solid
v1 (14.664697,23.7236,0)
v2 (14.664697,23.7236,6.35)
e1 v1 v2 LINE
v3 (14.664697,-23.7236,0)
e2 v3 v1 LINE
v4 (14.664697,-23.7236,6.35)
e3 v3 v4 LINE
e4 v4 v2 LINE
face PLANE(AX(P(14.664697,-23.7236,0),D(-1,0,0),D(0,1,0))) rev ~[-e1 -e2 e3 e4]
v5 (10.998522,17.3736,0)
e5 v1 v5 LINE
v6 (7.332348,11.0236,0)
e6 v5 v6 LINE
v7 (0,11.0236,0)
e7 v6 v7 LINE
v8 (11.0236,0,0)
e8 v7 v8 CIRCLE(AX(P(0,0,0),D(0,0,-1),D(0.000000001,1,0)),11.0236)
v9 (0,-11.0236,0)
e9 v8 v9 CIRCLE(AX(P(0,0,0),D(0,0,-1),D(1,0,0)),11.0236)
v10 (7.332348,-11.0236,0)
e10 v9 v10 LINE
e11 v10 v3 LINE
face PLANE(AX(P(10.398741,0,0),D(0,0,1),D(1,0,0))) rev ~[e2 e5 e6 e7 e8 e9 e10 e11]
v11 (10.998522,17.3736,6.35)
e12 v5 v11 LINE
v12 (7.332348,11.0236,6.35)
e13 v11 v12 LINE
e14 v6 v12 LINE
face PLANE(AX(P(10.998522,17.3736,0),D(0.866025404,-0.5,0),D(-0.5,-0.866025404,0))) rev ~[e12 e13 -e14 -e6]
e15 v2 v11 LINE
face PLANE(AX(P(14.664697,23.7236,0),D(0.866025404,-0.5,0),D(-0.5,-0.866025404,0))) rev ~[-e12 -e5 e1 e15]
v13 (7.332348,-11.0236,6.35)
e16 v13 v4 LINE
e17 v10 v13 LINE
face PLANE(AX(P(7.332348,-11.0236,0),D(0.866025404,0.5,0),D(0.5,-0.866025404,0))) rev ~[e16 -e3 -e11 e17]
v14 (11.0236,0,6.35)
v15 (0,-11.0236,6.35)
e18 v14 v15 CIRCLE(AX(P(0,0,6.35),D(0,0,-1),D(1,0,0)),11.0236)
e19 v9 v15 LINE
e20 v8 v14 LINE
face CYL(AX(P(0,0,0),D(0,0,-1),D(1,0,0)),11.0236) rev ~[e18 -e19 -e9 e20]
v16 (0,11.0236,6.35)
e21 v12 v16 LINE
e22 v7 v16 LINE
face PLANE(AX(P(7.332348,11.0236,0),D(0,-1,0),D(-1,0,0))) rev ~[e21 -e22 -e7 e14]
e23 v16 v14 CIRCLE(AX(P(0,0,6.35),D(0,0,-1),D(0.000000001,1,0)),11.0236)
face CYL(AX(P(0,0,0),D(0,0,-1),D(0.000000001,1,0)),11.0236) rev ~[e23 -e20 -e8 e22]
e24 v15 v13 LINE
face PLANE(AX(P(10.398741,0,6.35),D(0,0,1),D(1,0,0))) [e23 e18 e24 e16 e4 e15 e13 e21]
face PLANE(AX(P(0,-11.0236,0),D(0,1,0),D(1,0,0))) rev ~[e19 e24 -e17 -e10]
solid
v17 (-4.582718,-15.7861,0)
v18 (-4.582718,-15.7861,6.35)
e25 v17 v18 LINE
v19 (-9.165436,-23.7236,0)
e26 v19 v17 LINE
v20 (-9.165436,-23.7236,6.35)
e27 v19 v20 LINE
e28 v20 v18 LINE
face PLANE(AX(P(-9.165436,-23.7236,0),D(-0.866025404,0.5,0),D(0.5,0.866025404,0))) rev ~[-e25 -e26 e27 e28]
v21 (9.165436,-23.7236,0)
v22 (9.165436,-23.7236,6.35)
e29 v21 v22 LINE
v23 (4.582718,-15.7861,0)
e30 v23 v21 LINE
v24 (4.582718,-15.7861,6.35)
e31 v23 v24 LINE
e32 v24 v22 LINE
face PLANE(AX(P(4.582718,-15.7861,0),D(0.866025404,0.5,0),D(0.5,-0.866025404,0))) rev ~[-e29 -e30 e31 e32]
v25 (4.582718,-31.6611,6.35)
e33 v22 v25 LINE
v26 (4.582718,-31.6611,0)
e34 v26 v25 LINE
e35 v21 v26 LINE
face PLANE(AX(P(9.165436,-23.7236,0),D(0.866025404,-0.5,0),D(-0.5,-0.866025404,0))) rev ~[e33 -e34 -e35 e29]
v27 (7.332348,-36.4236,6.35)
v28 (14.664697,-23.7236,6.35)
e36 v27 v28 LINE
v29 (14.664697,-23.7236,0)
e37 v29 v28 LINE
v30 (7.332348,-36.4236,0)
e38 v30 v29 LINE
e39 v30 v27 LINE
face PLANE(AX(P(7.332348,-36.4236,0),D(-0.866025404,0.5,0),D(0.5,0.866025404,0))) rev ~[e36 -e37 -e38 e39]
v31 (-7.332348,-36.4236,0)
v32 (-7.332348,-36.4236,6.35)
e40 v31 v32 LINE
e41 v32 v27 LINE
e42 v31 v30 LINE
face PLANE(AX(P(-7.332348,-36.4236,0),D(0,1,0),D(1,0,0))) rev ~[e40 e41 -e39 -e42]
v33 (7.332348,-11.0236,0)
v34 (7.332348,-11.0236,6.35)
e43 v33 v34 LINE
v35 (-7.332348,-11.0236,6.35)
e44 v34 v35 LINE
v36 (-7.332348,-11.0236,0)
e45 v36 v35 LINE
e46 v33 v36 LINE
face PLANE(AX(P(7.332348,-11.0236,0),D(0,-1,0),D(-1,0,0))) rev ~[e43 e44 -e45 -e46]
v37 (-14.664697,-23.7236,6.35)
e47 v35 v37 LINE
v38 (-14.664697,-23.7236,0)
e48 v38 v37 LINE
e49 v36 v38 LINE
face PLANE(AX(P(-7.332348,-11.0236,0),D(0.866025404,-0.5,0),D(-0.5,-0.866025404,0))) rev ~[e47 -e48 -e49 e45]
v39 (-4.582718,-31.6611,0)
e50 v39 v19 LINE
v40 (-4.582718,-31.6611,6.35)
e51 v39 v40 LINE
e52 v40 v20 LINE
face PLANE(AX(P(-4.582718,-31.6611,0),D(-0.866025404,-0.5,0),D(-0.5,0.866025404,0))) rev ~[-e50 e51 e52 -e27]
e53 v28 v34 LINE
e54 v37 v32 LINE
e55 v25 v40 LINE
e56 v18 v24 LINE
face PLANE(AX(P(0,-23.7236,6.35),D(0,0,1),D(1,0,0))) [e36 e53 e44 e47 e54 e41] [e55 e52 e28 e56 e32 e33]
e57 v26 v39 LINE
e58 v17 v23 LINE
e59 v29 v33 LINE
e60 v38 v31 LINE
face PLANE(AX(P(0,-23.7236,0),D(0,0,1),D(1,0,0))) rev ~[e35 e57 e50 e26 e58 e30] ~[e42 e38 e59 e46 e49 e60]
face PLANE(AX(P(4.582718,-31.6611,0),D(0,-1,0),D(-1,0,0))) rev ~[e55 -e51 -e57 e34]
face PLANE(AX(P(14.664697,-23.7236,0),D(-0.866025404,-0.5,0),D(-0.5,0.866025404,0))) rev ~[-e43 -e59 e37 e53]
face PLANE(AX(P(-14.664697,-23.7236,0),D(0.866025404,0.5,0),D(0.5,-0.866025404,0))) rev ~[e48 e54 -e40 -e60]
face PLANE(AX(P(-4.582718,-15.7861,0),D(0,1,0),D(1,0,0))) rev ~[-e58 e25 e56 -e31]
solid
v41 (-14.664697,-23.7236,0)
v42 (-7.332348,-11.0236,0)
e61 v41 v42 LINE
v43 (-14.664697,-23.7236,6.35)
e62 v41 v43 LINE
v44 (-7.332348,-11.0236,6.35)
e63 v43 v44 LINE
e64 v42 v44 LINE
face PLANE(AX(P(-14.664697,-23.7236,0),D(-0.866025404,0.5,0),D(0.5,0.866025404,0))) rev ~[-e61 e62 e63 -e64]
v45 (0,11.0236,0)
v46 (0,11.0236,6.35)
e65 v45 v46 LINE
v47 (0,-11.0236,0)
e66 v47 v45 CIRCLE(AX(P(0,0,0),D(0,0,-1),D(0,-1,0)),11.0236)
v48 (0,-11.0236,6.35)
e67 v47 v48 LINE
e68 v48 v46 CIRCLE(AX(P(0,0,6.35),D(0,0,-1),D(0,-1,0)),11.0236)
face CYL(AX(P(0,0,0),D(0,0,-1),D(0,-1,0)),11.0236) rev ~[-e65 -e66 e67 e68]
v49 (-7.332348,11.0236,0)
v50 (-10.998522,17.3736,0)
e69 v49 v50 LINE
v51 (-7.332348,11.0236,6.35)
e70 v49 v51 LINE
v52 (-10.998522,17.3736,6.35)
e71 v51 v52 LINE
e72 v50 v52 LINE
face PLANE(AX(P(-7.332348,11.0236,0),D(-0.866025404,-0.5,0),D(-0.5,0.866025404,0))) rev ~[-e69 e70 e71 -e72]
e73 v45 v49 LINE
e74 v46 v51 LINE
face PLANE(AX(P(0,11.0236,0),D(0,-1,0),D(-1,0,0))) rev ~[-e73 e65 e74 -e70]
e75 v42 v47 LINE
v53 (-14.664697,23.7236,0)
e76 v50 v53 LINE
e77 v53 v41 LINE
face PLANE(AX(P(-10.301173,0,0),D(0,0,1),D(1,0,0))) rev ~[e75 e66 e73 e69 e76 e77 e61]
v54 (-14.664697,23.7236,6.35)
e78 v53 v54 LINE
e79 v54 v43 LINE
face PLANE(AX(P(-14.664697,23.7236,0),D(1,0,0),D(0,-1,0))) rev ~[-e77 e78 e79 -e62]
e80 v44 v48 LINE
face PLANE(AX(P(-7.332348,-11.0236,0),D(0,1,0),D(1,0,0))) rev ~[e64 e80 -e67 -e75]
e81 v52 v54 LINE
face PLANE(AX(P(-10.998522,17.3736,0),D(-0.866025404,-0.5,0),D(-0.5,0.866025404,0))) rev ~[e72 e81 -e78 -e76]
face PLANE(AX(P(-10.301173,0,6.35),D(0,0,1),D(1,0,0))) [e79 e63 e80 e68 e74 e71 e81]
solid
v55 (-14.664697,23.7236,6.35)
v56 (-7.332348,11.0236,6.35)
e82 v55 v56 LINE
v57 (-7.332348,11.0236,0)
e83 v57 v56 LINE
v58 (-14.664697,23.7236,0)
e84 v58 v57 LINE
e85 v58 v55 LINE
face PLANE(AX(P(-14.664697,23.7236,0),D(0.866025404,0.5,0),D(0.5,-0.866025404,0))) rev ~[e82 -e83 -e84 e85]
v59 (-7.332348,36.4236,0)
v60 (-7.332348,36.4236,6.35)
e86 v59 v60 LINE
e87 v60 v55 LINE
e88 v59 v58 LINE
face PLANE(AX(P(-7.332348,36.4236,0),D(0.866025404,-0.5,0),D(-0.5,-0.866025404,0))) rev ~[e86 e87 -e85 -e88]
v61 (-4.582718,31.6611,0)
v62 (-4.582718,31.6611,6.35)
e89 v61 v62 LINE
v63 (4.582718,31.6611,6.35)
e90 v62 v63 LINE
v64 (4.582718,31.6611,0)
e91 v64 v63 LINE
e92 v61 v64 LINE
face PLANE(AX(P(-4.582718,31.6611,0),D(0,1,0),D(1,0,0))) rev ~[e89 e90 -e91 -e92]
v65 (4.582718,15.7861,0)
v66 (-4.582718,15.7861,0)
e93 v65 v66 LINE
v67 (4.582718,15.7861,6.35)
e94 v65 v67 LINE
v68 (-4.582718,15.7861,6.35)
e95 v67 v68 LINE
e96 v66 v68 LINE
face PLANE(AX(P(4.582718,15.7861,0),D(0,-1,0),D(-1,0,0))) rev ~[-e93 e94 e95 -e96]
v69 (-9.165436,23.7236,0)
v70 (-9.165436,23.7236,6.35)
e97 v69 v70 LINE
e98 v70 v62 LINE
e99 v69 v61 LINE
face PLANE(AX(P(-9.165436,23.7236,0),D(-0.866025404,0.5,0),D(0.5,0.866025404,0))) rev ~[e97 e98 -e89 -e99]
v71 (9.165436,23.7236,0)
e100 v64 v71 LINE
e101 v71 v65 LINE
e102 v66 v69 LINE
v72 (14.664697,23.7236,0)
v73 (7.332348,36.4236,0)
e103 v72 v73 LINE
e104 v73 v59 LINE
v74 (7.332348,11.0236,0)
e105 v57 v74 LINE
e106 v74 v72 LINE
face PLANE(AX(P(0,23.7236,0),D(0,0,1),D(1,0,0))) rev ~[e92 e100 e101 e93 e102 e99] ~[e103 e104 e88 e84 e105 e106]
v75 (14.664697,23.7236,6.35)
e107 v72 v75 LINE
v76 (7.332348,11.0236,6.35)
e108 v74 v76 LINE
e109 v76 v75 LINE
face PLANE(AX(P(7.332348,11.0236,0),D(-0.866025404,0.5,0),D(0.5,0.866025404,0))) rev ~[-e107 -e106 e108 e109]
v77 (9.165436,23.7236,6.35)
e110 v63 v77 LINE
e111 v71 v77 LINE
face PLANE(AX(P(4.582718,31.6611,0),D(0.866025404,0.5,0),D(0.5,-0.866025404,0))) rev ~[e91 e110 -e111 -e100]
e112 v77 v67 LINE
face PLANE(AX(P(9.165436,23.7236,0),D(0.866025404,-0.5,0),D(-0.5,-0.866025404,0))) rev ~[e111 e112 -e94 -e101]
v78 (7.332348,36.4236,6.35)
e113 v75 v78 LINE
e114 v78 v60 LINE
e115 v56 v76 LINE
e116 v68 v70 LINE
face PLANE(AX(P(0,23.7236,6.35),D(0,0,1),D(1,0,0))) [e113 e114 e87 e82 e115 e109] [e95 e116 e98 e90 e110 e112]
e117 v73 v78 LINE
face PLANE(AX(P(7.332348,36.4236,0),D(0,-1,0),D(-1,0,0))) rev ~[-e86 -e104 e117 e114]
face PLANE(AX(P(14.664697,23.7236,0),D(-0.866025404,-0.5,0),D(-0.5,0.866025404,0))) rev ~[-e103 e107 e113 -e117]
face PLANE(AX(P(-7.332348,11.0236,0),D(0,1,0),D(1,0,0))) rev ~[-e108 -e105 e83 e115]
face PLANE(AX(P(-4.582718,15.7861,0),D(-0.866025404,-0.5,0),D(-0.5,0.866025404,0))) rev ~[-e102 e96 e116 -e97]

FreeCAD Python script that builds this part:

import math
import FreeCAD as App
import Part
import Sketcher
Q = App.Units.Quantity

doc = App.newDocument("Part")
body = doc.addObject("PartDesign::Body", "Body")

# Sketch on XY plane
sketch1 = body.newObject("Sketcher::SketchObject", "Sketch")
sketch1.AttachmentSupport = (doc.getObject("XY_Plane"), [""])
sketch1.MapMode = "FlatFace"
sketch1.addGeometry(Part.LineSegment(App.Vector(-7, 11, 0), App.Vector(7, 11, 0)), False)
sketch1.addGeometry(Part.LineSegment(App.Vector(7, 11, 0), App.Vector(15, 24, 0)), False)
sketch1.addGeometry(Part.LineSegment(App.Vector(15, 24, 0), App.Vector(7, 36, 0)), False)
sketch1.addGeometry(Part.LineSegment(App.Vector(7, 36, 0), App.Vector(-7, 36, 0)), False)
sketch1.addGeometry(Part.LineSegment(App.Vector(-7, 36, 0), App.Vector(-15, 24, 0)), False)
sketch1.addGeometry(Part.LineSegment(App.Vector(-15, 24, 0), App.Vector(-7, 11, 0)), False)
sketch1.addGeometry(Part.LineSegment(App.Vector(5, 32, 0), App.Vector(9, 24, 0)), False)
sketch1.addGeometry(Part.LineSegment(App.Vector(9, 24, 0), App.Vector(5, 16, 0)), False)
sketch1.addGeometry(Part.LineSegment(App.Vector(5, 16, 0), App.Vector(-5, 16, 0)), False)
sketch1.addGeometry(Part.LineSegment(App.Vector(-5, 16, 0), App.Vector(-9, 24, 0)), False)
sketch1.addGeometry(Part.LineSegment(App.Vector(-9, 24, 0), App.Vector(-5, 32, 0)), False)
sketch1.addGeometry(Part.LineSegment(App.Vector(-5, 32, 0), App.Vector(5, 32, 0)), False)
sketch1.addConstraint(Sketcher.Constraint("Coincident", 0, 2, 1, 1))
sketch1.addConstraint(Sketcher.Constraint("Coincident", 1, 2, 2, 1))
sketch1.addConstraint(Sketcher.Constraint("Coincident", 2, 2, 3, 1))
sketch1.addConstraint(Sketcher.Constraint("Coincident", 3, 2, 4, 1))
sketch1.addConstraint(Sketcher.Constraint("Coincident", 4, 2, 5, 1))
sketch1.addConstraint(Sketcher.Constraint("Coincident", 5, 2, 0, 1))
sketch1.addConstraint(Sketcher.Constraint("Coincident", 6, 2, 7, 1))
sketch1.addConstraint(Sketcher.Constraint("Coincident", 7, 2, 8, 1))
sketch1.addConstraint(Sketcher.Constraint("Coincident", 8, 2, 9, 1))
sketch1.addConstraint(Sketcher.Constraint("Coincident", 9, 2, 10, 1))
sketch1.addConstraint(Sketcher.Constraint("Coincident", 10, 2, 11, 1))
sketch1.addConstraint(Sketcher.Constraint("Coincident", 11, 2, 6, 1))
sketch1.addConstraint(Sketcher.Constraint("Horizontal", 0))
sketch1.addConstraint(Sketcher.Constraint("Horizontal", 3))
sketch1.addConstraint(Sketcher.Constraint("Horizontal", 8))
sketch1.addConstraint(Sketcher.Constraint("Horizontal", 11))
sketch1.addConstraint(Sketcher.Constraint("Symmetric", 1, 2, 4, 2, -2))
sketch1.addConstraint(Sketcher.Constraint("Symmetric", 6, 2, 9, 2, -2))
sketch1.addConstraint(Sketcher.Constraint("Parallel", 1, 4))
sketch1.addConstraint(Sketcher.Constraint("Parallel", 2, 5))
sketch1.addConstraint(Sketcher.Constraint("Parallel", 5, 6))
sketch1.addConstraint(Sketcher.Constraint("Parallel", 4, 7))
sketch1.addConstraint(Sketcher.Constraint("Parallel", 6, 9))
sketch1.addConstraint(Sketcher.Constraint("Parallel", 7, 10))
sketch1.addConstraint(Sketcher.Constraint("Horizontal", 4, 2, 6, 2))
sketch1.addConstraint(Sketcher.Constraint("Vertical", 0, 2, 2, 2))
sketch1.addConstraint(Sketcher.Constraint("Vertical", 3, 2, 5, 2))
sketch1.addConstraint(Sketcher.Constraint("Vertical", 8, 2, 10, 2))
sketch1.addConstraint(Sketcher.Constraint("Angle", 1, Q("60 deg")))
sketch1.addConstraint(Sketcher.Constraint("DistanceY", 0, 2, 2, 2, Q("1 in")))
sketch1.addConstraint(Sketcher.Constraint("DistanceY", -1, 1, 0, 2, Q("0.434 in")))
sketch1.addConstraint(Sketcher.Constraint("DistanceY", 0, 2, 7, 2, Q("0.1875 in")))
sketch1.addConstraint(Sketcher.Constraint("DistanceX", 0, 1, 0, 2, 14.664697))
sketch1.addConstraint(Sketcher.Constraint("DistanceX", 8, 2, 8, 1, 9.165436))
pad1 = body.newObject("PartDesign::Pad", "Pad")
pad1.Profile = sketch1
pad1.Length = Q("0.25 in")
body2 = doc.addObject("PartDesign::Body", "Body001")

# Sketch on XY plane
sketch2 = body2.newObject("Sketcher::SketchObject", "Sketch001")
sketch2.AttachmentSupport = (doc.getObject("XY_Plane001"), [""])
sketch2.MapMode = "FlatFace"
sketch2.addGeometry(Part.LineSegment(App.Vector(7, -11, 0), App.Vector(-7, -11, 0)), False)
sketch2.addGeometry(Part.LineSegment(App.Vector(-7, -11, 0), App.Vector(-15, -24, 0)), False)
sketch2.addGeometry(Part.LineSegment(App.Vector(-15, -24, 0), App.Vector(-7, -36, 0)), False)
sketch2.addGeometry(Part.LineSegment(App.Vector(-7, -36, 0), App.Vector(7, -36, 0)), False)
sketch2.addGeometry(Part.LineSegment(App.Vector(7, -36, 0), App.Vector(15, -24, 0)), False)
sketch2.addGeometry(Part.LineSegment(App.Vector(15, -24, 0), App.Vector(7, -11, 0)), False)
sketch2.addGeometry(Part.LineSegment(App.Vector(-5, -16, 0), App.Vector(5, -16, 0)), False)
sketch2.addGeometry(Part.LineSegment(App.Vector(5, -16, 0), App.Vector(9, -24, 0)), False)
sketch2.addGeometry(Part.LineSegment(App.Vector(9, -24, 0), App.Vector(5, -32, 0)), False)
sketch2.addGeometry(Part.LineSegment(App.Vector(5, -32, 0), App.Vector(-5, -32, 0)), False)
sketch2.addGeometry(Part.LineSegment(App.Vector(-5, -32, 0), App.Vector(-9, -24, 0)), False)
sketch2.addGeometry(Part.LineSegment(App.Vector(-9, -24, 0), App.Vector(-5, -16, 0)), False)
sketch2.addConstraint(Sketcher.Constraint("Coincident", 0, 2, 1, 1))
sketch2.addConstraint(Sketcher.Constraint("Coincident", 1, 2, 2, 1))
sketch2.addConstraint(Sketcher.Constraint("Coincident", 2, 2, 3, 1))
sketch2.addConstraint(Sketcher.Constraint("Coincident", 3, 2, 4, 1))
sketch2.addConstraint(Sketcher.Constraint("Coincident", 4, 2, 5, 1))
sketch2.addConstraint(Sketcher.Constraint("Coincident", 5, 2, 0, 1))
sketch2.addConstraint(Sketcher.Constraint("Coincident", 6, 2, 7, 1))
sketch2.addConstraint(Sketcher.Constraint("Coincident", 7, 2, 8, 1))
sketch2.addConstraint(Sketcher.Constraint("Coincident", 8, 2, 9, 1))
sketch2.addConstraint(Sketcher.Constraint("Coincident", 9, 2, 10, 1))
sketch2.addConstraint(Sketcher.Constraint("Coincident", 10, 2, 11, 1))
sketch2.addConstraint(Sketcher.Constraint("Coincident", 11, 2, 6, 1))
sketch2.addConstraint(Sketcher.Constraint("Horizontal", 0))
sketch2.addConstraint(Sketcher.Constraint("Horizontal", 3))
sketch2.addConstraint(Sketcher.Constraint("Horizontal", 6))
sketch2.addConstraint(Sketcher.Constraint("Horizontal", 9))
sketch2.addConstraint(Sketcher.Constraint("Symmetric", 1, 2, 4, 2, -2))
sketch2.addConstraint(Sketcher.Constraint("Symmetric", 7, 2, 10, 2, -2))
sketch2.addConstraint(Sketcher.Constraint("Parallel", 1, 4))
sketch2.addConstraint(Sketcher.Constraint("Parallel", 2, 5))
sketch2.addConstraint(Sketcher.Constraint("Parallel", 5, 7))
sketch2.addConstraint(Sketcher.Constraint("Parallel", 4, 8))
sketch2.addConstraint(Sketcher.Constraint("Parallel", 7, 10))
sketch2.addConstraint(Sketcher.Constraint("Parallel", 8, 11))
sketch2.addConstraint(Sketcher.Constraint("Horizontal", 4, 2, 7, 2))
sketch2.addConstraint(Sketcher.Constraint("Vertical", 0, 2, 2, 2))
sketch2.addConstraint(Sketcher.Constraint("Vertical", 3, 2, 5, 2))
sketch2.addConstraint(Sketcher.Constraint("Vertical", 6, 2, 8, 2))
sketch2.addConstraint(Sketcher.Constraint("Angle", 1, Q("-120 deg")))
sketch2.addConstraint(Sketcher.Constraint("DistanceY", 2, 2, 0, 2, Q("1 in")))
sketch2.addConstraint(Sketcher.Constraint("DistanceY", 0, 2, -1, 1, Q("0.434 in")))
sketch2.addConstraint(Sketcher.Constraint("DistanceY", 6, 2, 5, 2, Q("0.1875 in")))
sketch2.addConstraint(Sketcher.Constraint("DistanceX", 0, 2, 0, 1, 14.664697))
sketch2.addConstraint(Sketcher.Constraint("DistanceX", 6, 1, 6, 2, 9.165436))
pad2 = body2.newObject("PartDesign::Pad", "Pad001")
pad2.Profile = sketch2
pad2.Length = Q("0.25 in")
body3 = doc.addObject("PartDesign::Body", "Body002")

# Sketch on XY plane
sketch3 = body3.newObject("Sketcher::SketchObject", "Sketch002")
sketch3.AttachmentSupport = (doc.getObject("XY_Plane002"), [""])
sketch3.MapMode = "FlatFace"
sketch3.addGeometry(Part.ArcOfCircle(Part.Circle(App.Vector(0, 0, 0), App.Vector(0, 0, 1), 11), math.radians(90), math.radians(270)), False)
sketch3.addGeometry(Part.LineSegment(App.Vector(0, 11, 0), App.Vector(-7, 11, 0)), False)
sketch3.addGeometry(Part.LineSegment(App.Vector(-7, 11, 0), App.Vector(-11, 17, 0)), False)
sketch3.addGeometry(Part.LineSegment(App.Vector(-11, 17, 0), App.Vector(-15, 24, 0)), False)
sketch3.addGeometry(Part.LineSegment(App.Vector(-15, 24, 0), App.Vector(-15, -24, 0)), False)
sketch3.addGeometry(Part.LineSegment(App.Vector(-15, -24, 0), App.Vector(-7, -11, 0)), False)
sketch3.addGeometry(Part.LineSegment(App.Vector(-7, -11, 0), App.Vector(0, -11, 0)), False)
sketch3.addConstraint(Sketcher.Constraint("Tangent", 0, 1, 1, 1))
sketch3.addConstraint(Sketcher.Constraint("Coincident", 1, 2, 2, 1))
sketch3.addConstraint(Sketcher.Constraint("Coincident", 2, 2, 3, 1))
sketch3.addConstraint(Sketcher.Constraint("Coincident", 3, 2, 4, 1))
sketch3.addConstraint(Sketcher.Constraint("Coincident", 4, 2, 5, 1))
sketch3.addConstraint(Sketcher.Constraint("Coincident", 5, 2, 6, 1))
sketch3.addConstraint(Sketcher.Constraint("Tangent", 6, 2, 0, 2))
sketch3.addConstraint(Sketcher.Constraint("Horizontal", 1))
sketch3.addConstraint(Sketcher.Constraint("Vertical", 4))
sketch3.addConstraint(Sketcher.Constraint("Horizontal", 6))
sketch3.addConstraint(Sketcher.Constraint("Coincident", 0, 3, -1, 1))
sketch3.addConstraint(Sketcher.Constraint("Parallel", 2, 3))
sketch3.addConstraint(Sketcher.Constraint("Vertical", 1, 2, 5, 2))
sketch3.addConstraint(Sketcher.Constraint("Equal", 2, 3))
sketch3.addConstraint(Sketcher.Constraint("Angle", 2, Q("120 deg")))
sketch3.addConstraint(Sketcher.Constraint("Angle", 5, Q("60 deg")))
sketch3.addConstraint(Sketcher.Constraint("Radius", 0, Q("0.434 in")))
sketch3.addConstraint(Sketcher.Constraint("DistanceY", 1, 2, 3, 2, Q("0.5 in")))
sketch3.addConstraint(Sketcher.Constraint("DistanceX", 1, 2, 1, 1, 7.332348))
pad3 = body3.newObject("PartDesign::Pad", "Pad002")
pad3.Profile = sketch3
pad3.Length = Q("0.25 in")
body4 = doc.addObject("PartDesign::Body", "Body003")

# Sketch on XY plane
sketch4 = body4.newObject("Sketcher::SketchObject", "Sketch003")
sketch4.AttachmentSupport = (doc.getObject("XY_Plane003"), [""])
sketch4.MapMode = "FlatFace"
sketch4.addGeometry(Part.LineSegment(App.Vector(15, 24, 0), App.Vector(11, 17, 0)), False)
sketch4.addGeometry(Part.LineSegment(App.Vector(11, 17, 0), App.Vector(7, 11, 0)), False)
sketch4.addGeometry(Part.LineSegment(App.Vector(7, 11, 0), App.Vector(0, 11, 0)), False)
sketch4.addGeometry(Part.ArcOfCircle(Part.Circle(App.Vector(0, 0, 0), App.Vector(0, 0, 1), 11), math.radians(0), math.radians(90)), False)
sketch4.addGeometry(Part.ArcOfCircle(Part.Circle(App.Vector(0, 0, 0), App.Vector(0, 0, 1), 11), math.radians(-90), math.radians(0)), False)
sketch4.addGeometry(Part.LineSegment(App.Vector(0, -11, 0), App.Vector(7, -11, 0)), False)
sketch4.addGeometry(Part.LineSegment(App.Vector(7, -11, 0), App.Vector(15, -24, 0)), False)
sketch4.addGeometry(Part.LineSegment(App.Vector(15, -24, 0), App.Vector(15, 24, 0)), False)
sketch4.addConstraint(Sketcher.Constraint("Coincident", 0, 2, 1, 1))
sketch4.addConstraint(Sketcher.Constraint("Coincident", 1, 2, 2, 1))
sketch4.addConstraint(Sketcher.Constraint("Tangent", 2, 2, 3, 2))
sketch4.addConstraint(Sketcher.Constraint("Tangent", 3, 1, 4, 2))
sketch4.addConstraint(Sketcher.Constraint("Tangent", 4, 1, 5, 1))
sketch4.addConstraint(Sketcher.Constraint("Coincident", 5, 2, 6, 1))
sketch4.addConstraint(Sketcher.Constraint("Coincident", 6, 2, 7, 1))
sketch4.addConstraint(Sketcher.Constraint("Coincident", 7, 2, 0, 1))
sketch4.addConstraint(Sketcher.Constraint("Horizontal", 2))
sketch4.addConstraint(Sketcher.Constraint("Horizontal", 5))
sketch4.addConstraint(Sketcher.Constraint("Vertical", 7))
sketch4.addConstraint(Sketcher.Constraint("Coincident", 3, 3, -1, 1))
sketch4.addConstraint(Sketcher.Constraint("Equal", 3, 4))
sketch4.addConstraint(Sketcher.Constraint("PointOnObject", 3, 1, -1))
sketch4.addConstraint(Sketcher.Constraint("Parallel", 0, 1))
sketch4.addConstraint(Sketcher.Constraint("Vertical", 1, 2, 5, 2))
sketch4.addConstraint(Sketcher.Constraint("Equal", 0, 1))
sketch4.addConstraint(Sketcher.Constraint("Angle", 0, Q("-120 deg")))
sketch4.addConstraint(Sketcher.Constraint("Angle", 6, Q("-60 deg")))
sketch4.addConstraint(Sketcher.Constraint("Radius", 3, Q("0.434 in")))
sketch4.addConstraint(Sketcher.Constraint("DistanceY", 6, 2, 5, 2, Q("0.5 in")))
sketch4.addConstraint(Sketcher.Constraint("DistanceX", 2, 2, 2, 1, 7.332348))
pad4 = body4.newObject("PartDesign::Pad", "Pad003")
pad4.Profile = sketch4
pad4.Length = Q("0.25 in")

doc.recompute()
